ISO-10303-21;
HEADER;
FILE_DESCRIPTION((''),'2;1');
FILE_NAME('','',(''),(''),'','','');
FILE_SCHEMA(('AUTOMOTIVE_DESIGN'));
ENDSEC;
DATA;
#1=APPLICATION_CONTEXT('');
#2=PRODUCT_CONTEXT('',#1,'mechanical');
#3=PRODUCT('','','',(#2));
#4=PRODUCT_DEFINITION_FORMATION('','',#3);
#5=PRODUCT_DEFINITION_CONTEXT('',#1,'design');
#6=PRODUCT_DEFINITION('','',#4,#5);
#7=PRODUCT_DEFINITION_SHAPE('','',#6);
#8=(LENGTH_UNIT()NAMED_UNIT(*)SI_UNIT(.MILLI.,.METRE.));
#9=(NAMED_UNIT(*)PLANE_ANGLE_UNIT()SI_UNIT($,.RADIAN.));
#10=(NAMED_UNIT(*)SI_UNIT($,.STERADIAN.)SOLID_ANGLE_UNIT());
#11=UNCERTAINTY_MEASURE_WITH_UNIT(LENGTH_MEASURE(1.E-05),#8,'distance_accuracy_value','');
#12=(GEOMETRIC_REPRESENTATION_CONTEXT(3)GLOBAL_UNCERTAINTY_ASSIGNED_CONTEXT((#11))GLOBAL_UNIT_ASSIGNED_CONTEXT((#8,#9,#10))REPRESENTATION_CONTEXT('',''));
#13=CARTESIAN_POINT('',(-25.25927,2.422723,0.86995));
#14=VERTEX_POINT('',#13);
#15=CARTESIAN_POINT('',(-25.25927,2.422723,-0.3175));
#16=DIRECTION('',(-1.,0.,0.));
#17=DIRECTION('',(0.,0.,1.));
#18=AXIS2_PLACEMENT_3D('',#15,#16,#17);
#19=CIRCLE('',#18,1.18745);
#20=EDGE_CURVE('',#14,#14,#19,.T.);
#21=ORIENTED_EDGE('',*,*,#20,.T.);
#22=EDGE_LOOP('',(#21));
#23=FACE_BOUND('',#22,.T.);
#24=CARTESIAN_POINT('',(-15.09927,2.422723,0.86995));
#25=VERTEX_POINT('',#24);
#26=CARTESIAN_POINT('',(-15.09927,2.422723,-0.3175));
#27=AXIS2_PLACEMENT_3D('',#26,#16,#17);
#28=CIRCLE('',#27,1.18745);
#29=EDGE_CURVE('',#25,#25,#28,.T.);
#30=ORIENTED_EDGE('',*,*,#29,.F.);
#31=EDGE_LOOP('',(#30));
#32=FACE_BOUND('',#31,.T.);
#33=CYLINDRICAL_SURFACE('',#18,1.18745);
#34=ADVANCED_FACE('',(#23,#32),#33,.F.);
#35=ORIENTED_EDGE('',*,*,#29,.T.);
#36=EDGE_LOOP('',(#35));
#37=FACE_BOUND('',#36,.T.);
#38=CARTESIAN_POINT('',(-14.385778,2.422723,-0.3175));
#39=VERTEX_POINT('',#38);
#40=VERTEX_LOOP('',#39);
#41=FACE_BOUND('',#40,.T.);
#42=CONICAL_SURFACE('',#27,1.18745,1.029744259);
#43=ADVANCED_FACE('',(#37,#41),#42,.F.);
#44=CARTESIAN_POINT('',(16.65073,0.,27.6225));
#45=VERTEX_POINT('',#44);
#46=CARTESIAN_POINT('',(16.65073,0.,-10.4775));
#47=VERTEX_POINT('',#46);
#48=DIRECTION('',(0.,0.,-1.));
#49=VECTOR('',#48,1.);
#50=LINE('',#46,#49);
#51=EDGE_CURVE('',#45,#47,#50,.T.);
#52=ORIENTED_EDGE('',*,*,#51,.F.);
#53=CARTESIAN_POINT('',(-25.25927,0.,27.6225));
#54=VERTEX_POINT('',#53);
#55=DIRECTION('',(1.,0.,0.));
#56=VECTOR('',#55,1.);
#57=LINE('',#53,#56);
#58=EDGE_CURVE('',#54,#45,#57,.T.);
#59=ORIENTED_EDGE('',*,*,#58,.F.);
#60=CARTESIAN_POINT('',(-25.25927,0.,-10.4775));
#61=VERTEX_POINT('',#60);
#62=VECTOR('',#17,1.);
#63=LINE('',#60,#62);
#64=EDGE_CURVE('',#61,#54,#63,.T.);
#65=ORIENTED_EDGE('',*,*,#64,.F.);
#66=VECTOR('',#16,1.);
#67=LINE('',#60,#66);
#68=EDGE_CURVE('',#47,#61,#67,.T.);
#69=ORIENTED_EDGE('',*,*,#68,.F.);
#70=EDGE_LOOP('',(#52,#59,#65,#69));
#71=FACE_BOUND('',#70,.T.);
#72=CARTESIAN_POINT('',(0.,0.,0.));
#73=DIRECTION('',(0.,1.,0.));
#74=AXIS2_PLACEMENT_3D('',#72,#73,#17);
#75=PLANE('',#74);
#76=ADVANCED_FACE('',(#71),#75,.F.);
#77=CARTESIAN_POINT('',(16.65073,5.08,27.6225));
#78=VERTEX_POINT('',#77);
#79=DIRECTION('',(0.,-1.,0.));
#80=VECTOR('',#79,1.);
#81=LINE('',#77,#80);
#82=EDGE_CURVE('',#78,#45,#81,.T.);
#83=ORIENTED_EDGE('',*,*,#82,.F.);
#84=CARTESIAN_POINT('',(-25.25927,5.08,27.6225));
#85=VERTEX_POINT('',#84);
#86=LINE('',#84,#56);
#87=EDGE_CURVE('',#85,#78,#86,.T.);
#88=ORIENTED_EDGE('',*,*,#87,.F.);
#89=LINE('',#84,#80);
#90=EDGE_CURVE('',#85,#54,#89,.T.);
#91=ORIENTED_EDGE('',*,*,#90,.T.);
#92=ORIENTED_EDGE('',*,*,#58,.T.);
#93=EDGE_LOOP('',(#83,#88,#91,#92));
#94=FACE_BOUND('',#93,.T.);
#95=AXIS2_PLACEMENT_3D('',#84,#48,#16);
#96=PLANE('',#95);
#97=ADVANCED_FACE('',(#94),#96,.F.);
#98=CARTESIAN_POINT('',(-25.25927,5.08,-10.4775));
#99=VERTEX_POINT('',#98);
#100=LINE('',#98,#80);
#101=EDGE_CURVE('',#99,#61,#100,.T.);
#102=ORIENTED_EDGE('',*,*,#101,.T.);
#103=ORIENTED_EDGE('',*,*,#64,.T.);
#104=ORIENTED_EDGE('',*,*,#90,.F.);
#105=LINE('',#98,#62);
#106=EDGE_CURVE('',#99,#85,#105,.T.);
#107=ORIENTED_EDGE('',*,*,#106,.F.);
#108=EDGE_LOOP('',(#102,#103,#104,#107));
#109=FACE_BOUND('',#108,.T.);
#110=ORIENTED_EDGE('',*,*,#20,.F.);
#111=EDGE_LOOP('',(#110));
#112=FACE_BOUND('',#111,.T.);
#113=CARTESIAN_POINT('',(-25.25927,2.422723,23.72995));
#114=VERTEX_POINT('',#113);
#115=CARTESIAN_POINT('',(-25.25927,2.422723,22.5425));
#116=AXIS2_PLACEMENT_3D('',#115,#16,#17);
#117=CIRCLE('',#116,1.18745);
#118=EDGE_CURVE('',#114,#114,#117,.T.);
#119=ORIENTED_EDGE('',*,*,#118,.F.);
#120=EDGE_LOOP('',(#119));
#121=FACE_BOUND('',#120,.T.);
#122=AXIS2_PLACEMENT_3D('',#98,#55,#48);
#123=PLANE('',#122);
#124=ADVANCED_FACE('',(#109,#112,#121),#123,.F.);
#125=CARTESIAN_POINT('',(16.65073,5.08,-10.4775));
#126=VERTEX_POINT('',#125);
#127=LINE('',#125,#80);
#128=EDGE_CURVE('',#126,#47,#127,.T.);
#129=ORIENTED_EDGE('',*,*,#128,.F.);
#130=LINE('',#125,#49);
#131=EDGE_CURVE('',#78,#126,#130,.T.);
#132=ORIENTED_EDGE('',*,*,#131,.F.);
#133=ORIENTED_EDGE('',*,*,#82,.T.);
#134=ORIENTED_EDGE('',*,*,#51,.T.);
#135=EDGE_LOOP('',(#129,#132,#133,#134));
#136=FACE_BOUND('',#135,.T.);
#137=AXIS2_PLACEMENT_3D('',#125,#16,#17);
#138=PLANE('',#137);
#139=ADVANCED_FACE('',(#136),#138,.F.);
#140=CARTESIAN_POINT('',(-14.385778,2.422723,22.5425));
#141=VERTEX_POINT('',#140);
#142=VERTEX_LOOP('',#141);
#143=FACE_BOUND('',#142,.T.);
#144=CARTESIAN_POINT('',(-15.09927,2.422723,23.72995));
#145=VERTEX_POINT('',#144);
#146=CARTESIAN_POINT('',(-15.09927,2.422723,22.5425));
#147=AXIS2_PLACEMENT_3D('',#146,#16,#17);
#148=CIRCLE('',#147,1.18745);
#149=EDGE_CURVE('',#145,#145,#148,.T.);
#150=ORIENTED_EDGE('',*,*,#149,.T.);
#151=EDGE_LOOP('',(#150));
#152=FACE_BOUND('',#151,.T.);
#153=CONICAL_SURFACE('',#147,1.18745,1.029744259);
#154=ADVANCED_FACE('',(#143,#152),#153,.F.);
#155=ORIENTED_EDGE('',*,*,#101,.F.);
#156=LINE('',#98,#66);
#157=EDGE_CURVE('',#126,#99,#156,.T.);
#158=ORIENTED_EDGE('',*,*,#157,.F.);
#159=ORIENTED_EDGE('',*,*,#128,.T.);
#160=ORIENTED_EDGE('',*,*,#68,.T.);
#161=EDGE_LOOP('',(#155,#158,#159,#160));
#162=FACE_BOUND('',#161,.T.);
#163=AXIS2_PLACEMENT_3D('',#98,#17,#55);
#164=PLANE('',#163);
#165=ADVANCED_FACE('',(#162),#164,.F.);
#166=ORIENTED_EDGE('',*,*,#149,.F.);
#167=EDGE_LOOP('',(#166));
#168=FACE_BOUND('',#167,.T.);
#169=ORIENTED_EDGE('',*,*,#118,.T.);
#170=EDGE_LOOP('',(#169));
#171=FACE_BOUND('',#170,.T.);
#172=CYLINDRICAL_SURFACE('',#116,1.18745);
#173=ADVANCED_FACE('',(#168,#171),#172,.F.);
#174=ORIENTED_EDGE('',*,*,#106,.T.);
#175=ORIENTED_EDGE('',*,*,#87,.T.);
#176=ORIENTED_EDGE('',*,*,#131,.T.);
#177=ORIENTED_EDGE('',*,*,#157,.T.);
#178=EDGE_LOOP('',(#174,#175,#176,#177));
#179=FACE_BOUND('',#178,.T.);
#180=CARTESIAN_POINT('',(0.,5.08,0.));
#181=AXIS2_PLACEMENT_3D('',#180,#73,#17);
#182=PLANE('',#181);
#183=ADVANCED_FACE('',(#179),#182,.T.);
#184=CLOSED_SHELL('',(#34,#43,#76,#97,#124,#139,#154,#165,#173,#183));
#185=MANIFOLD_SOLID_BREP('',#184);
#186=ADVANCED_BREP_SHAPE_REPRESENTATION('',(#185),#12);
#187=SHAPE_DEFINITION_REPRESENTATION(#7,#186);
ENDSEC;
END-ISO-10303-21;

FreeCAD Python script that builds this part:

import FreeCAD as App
import Part
import Sketcher

V = App.Vector
Q = App.Units.Quantity

doc = App.newDocument("Part")
body = doc.addObject("PartDesign::Body", "Body")

sketch1 = doc.addObject("Sketcher::SketchObject", "Sketch")
body.addObject(sketch1)
sketch1.AttachmentSupport = (doc.XZ_Plane, [""])
sketch1.MapMode = "FlatFace"
sketch1.addGeometry([
    Part.LineSegment(V(-25.25927, -10.4775, 0), V(-25.25927, 27.6225, 0)),
    Part.LineSegment(V(-25.25927, 27.6225, 0), V(16.65073, 27.6225, 0)),
    Part.LineSegment(V(16.65073, 27.6225, 0), V(16.65073, -10.4775, 0)),
    Part.LineSegment(V(16.65073, -10.4775, 0), V(-25.25927, -10.4775, 0)),
], False)
sketch1.addConstraint([
    Sketcher.Constraint("Coincident", 0, 2, 1, 1),
    Sketcher.Constraint("Coincident", 1, 2, 2, 1),
    Sketcher.Constraint("Coincident", 2, 2, 3, 1),
    Sketcher.Constraint("Coincident", 3, 2, 0, 1),
    Sketcher.Constraint("Vertical", 0),
    Sketcher.Constraint("Horizontal", 1),
    Sketcher.Constraint("Vertical", 2),
    Sketcher.Constraint("Horizontal", 3),
    Sketcher.Constraint("DistanceY", 0, 1, 0, 2, Q("1.5 in")),
    Sketcher.Constraint("DistanceX", 1, 1, 1, 2, Q("1.65 in")),
    Sketcher.Constraint("DistanceY", -1, 1, 0, 2, Q("1.0875 in")),
    Sketcher.Constraint("DistanceX", 0, 2, -1, 1, Q("25.25927 mm")),
])
pad1 = doc.addObject("PartDesign::Pad", "Pad")
body.addObject(pad1)
pad1.Profile = sketch1
pad1.Length = Q("0.2 in")
pad1.Reversed = True

sketch2 = doc.addObject("Sketcher::SketchObject", "Sketch001")
body.addObject(sketch2)
sketch2.AttachmentSupport = (doc.YZ_Plane, [""])
sketch2.MapMode = "FlatFace"
sketch2.AttachmentOffset = App.Placement(V(0, 0, -25.25927), App.Rotation())
sketch2.addGeometry([
    Part.Circle(V(2.422723, -0.3175, 0), V(0, 0, 1), 1.18745),
    Part.Circle(V(2.422723, 22.5425, 0), V(0, 0, 1), 1.18745),
], False)
sketch2.addConstraint([
    Sketcher.Constraint("Equal", 0, 1),
    Sketcher.Constraint("Vertical", 0, 3, 1, 3),
    Sketcher.Constraint("Diameter", 0, Q("0.0935 in")),
    Sketcher.Constraint("DistanceY", 0, 3, 1, 3, Q("0.9 in")),
    Sketcher.Constraint("DistanceY", 0, 3, -1, 1, Q("0.0125 in")),
    Sketcher.Constraint("DistanceX", -1, 1, 0, 3, Q("2.422723 mm")),
])
doc.recompute()
hole = doc.addObject("PartDesign::Hole", "Hole")
body.addObject(hole)
hole.Profile = sketch2
hole.ThreadType = "None"
hole.Diameter = Q("0.0935 in")
hole.DepthType = "Dimension"
hole.Depth = Q("0.4 in")
hole.DrillPoint = "Angled"
hole.DrillPointAngle = 118
hole.Reversed = True

doc.recompute()
